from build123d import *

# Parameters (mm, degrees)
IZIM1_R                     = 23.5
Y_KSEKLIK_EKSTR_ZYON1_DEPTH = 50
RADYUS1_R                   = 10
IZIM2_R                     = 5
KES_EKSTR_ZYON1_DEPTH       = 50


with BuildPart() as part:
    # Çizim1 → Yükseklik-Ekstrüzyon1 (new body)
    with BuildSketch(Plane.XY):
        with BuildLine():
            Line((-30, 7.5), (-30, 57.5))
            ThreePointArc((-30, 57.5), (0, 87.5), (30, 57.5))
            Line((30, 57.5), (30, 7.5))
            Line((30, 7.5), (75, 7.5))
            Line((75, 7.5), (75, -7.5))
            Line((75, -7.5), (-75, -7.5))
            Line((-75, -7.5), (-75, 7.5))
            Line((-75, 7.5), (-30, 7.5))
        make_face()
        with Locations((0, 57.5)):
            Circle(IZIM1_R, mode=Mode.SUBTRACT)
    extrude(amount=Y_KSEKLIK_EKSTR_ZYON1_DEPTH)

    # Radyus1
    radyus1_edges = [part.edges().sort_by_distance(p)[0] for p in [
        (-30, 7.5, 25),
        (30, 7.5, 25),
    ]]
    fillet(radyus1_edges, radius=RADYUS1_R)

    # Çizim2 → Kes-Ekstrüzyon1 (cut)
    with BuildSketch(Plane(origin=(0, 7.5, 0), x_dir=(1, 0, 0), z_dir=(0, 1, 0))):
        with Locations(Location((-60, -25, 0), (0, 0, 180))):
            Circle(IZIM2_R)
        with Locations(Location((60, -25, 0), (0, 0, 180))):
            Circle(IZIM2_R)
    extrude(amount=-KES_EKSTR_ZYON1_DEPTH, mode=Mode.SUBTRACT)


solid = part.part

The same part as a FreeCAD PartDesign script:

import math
import FreeCAD as App
import Part
import Sketcher

V = App.Vector
Q = App.Units.Quantity


def edges_at(feature, points):
    """Names of the edges that pass closest to the given points."""
    edges = feature.Shape.Edges
    near = lambda p: min(range(len(edges)), key=lambda i: edges[i].distToShape(Part.Vertex(*p))[0])
    return sorted({f"Edge{near(p) + 1}" for p in points})

doc = App.newDocument("Part")
body = doc.addObject("PartDesign::Body", "Body")

sketch1 = doc.addObject("Sketcher::SketchObject", "Sketch")
body.addObject(sketch1)
sketch1.AttachmentSupport = (doc.XY_Plane, [""])
sketch1.MapMode = "FlatFace"
sketch1.addGeometry(Part.LineSegment(V(-30, 58, 0), V(-30, 8, 0)), False)
sketch1.addGeometry(Part.LineSegment(V(-30, 8, 0), V(-75, 8, 0)), False)
sketch1.addGeometry(Part.LineSegment(V(-75, 8, 0), V(-75, -8, 0)), False)
sketch1.addGeometry(Part.LineSegment(V(-75, -8, 0), V(75, -8, 0)), False)
sketch1.addGeometry(Part.LineSegment(V(75, -8, 0), V(75, 8, 0)), False)
sketch1.addGeometry(Part.LineSegment(V(75, 8, 0), V(30, 8, 0)), False)
sketch1.addGeometry(Part.LineSegment(V(30, 8, 0), V(30, 58, 0)), False)
sketch1.addGeometry(Part.ArcOfCircle(Part.Circle(V(0, 58, 0), V(0, 0, 1), 30), math.radians(0), math.radians(180)), False)
sketch1.addGeometry(Part.Circle(V(0, 58, 0), V(0, 0, 1), 24), False)
sketch1.addConstraint(Sketcher.Constraint("Coincident", 0, 2, 1, 1))
sketch1.addConstraint(Sketcher.Constraint("Coincident", 1, 2, 2, 1))
sketch1.addConstraint(Sketcher.Constraint("Coincident", 2, 2, 3, 1))
sketch1.addConstraint(Sketcher.Constraint("Coincident", 3, 2, 4, 1))
sketch1.addConstraint(Sketcher.Constraint("Coincident", 4, 2, 5, 1))
sketch1.addConstraint(Sketcher.Constraint("Coincident", 5, 2, 6, 1))
sketch1.addConstraint(Sketcher.Constraint("Tangent", 6, 2, 7, 1))
sketch1.addConstraint(Sketcher.Constraint("Tangent", 7, 2, 0, 1))
sketch1.addConstraint(Sketcher.Constraint("Vertical", 0))
sketch1.addConstraint(Sketcher.Constraint("Horizontal", 1))
sketch1.addConstraint(Sketcher.Constraint("Vertical", 2))
sketch1.addConstraint(Sketcher.Constraint("Horizontal", 3))
sketch1.addConstraint(Sketcher.Constraint("Vertical", 4))
sketch1.addConstraint(Sketcher.Constraint("Horizontal", 5))
sketch1.addConstraint(Sketcher.Constraint("Vertical", 6))
sketch1.addConstraint(Sketcher.Constraint("Coincident", 8, 3, 7, 3))
sketch1.addConstraint(Sketcher.Constraint("Symmetric", 1, 2, 3, 2, -1, 1))
sketch1.addConstraint(Sketcher.Constraint("Symmetric", 0, 2, 5, 2, -2))
sketch1.addConstraint(Sketcher.Constraint("Diameter", 8, Q("47 mm")))
sketch1.addConstraint(Sketcher.Constraint("Radius", 7, Q("30 mm")))
sketch1.addConstraint(Sketcher.Constraint("DistanceX", 1, 2, 1, 1, Q("45 mm")))
sketch1.addConstraint(Sketcher.Constraint("DistanceY", 0, 2, 0, 1, Q("50 mm")))
sketch1.addConstraint(Sketcher.Constraint("DistanceY", 2, 2, 2, 1, Q("15 mm")))
pad1 = doc.addObject("PartDesign::Pad", "Pad")
body.addObject(pad1)
pad1.Profile = sketch1
pad1.Length = 50
doc.recompute()

fillet = doc.addObject("PartDesign::Fillet", "Fillet")
body.addObject(fillet)
fillet.Base = (pad1, edges_at(pad1, [(-30, 7.5, 25), (30, 7.5, 25)]))
fillet.Radius = 10

sketch2 = doc.addObject("Sketcher::SketchObject", "Sketch001")
body.addObject(sketch2)
sketch2.AttachmentSupport = (doc.XZ_Plane, [""])
sketch2.MapMode = "FlatFace"
sketch2.AttachmentOffset = App.Placement(V(0, 0, -7.5), App.Rotation())
sketch2.addGeometry(Part.Circle(V(-60, 25, 0), V(0, 0, 1), 5), False)
sketch2.addGeometry(Part.Circle(V(60, 25, 0), V(0, 0, 1), 5), False)
sketch2.addConstraint(Sketcher.Constraint("Equal", 0, 1))
sketch2.addConstraint(Sketcher.Constraint("Symmetric", 0, 3, 1, 3, -2))
sketch2.addConstraint(Sketcher.Constraint("Diameter", 0, Q("10 mm")))
sketch2.addConstraint(Sketcher.Constraint("DistanceX", 0, 3, -1, 1, Q("60 mm")))
sketch2.addConstraint(Sketcher.Constraint("DistanceY", -1, 1, 0, 3, Q("25 mm")))
pocket1 = doc.addObject("PartDesign::Pocket", "Pocket")
body.addObject(pocket1)
pocket1.Profile = sketch2
pocket1.Length = 50
pocket1.Reversed = True

doc.recompute()
